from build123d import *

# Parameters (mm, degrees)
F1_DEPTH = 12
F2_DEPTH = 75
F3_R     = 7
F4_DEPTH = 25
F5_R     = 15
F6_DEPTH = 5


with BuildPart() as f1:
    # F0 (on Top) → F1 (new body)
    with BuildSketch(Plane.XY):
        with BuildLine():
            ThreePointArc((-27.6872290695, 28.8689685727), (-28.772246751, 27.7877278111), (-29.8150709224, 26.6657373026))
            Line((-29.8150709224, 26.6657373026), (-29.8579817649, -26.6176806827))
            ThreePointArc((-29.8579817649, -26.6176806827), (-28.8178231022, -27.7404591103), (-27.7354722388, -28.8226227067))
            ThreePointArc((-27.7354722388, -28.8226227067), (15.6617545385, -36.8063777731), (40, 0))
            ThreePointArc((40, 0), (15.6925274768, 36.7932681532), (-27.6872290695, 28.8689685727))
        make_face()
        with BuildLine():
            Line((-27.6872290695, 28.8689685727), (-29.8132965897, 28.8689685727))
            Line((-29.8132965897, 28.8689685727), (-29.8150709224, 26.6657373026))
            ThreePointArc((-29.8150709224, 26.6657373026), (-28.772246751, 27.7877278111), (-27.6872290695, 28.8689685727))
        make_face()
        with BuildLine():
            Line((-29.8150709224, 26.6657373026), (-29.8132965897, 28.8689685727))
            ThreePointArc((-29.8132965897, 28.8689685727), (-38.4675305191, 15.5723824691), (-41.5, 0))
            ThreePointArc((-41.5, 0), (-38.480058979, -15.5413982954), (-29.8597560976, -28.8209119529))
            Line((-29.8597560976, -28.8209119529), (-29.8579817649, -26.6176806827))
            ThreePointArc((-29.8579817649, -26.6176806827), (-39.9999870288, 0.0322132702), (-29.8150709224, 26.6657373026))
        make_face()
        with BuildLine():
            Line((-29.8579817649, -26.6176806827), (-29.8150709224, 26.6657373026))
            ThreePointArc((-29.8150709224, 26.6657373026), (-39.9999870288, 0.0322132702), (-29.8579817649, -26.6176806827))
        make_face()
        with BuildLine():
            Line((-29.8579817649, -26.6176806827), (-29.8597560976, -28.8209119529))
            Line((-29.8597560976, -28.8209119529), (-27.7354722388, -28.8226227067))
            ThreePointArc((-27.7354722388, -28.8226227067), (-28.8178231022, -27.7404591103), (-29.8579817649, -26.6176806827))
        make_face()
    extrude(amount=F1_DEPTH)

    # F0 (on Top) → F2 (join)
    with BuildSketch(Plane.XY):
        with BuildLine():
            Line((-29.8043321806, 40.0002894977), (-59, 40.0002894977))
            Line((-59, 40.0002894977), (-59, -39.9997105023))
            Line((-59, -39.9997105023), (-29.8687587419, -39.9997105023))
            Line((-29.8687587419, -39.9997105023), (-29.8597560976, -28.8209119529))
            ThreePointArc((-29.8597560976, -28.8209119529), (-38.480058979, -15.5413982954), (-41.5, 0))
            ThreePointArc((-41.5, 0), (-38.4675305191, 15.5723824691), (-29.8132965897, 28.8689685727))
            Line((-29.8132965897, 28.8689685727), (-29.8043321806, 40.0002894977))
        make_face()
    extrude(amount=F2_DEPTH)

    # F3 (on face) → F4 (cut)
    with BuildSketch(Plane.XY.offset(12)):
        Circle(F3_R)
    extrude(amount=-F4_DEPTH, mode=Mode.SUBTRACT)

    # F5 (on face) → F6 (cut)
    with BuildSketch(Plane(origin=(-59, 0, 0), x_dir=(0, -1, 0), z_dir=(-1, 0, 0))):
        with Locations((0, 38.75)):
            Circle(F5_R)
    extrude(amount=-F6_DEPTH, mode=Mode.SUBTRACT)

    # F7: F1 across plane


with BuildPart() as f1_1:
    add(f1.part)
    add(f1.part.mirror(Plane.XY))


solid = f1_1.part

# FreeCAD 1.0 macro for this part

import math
import FreeCAD as App
import Part
import Sketcher
Q = App.Units.Quantity

doc = App.newDocument("Part")
body = doc.addObject("PartDesign::Body", "Body")

sketch1 = body.newObject("Sketcher::SketchObject", "Sketch")
sketch1.AttachmentSupport = (doc.getObject("XY_Plane"), [""])
sketch1.MapMode = "FlatFace"
sketch1.addGeometry([
    Part.ArcOfCircle(Part.Circle(App.Vector(0, 0, 0), App.Vector(0, 0, 1), 40), math.radians(-134), math.radians(0)),
    Part.ArcOfCircle(Part.Circle(App.Vector(0, 0, 0), App.Vector(0, 0, 1), 40), math.radians(0), math.radians(134)),
    Part.LineSegment(App.Vector(-27.7, 28.9, 0), App.Vector(-29.8, 28.9, 0)),
    Part.ArcOfCircle(Part.Circle(App.Vector(0, 0, 0), App.Vector(0, 0, 1), 41.5), math.radians(136), math.radians(180)),
    Part.ArcOfCircle(Part.Circle(App.Vector(0, 0, 0), App.Vector(0, 0, 1), 41.5), math.radians(180), math.radians(224)),
    Part.LineSegment(App.Vector(-29.9, -28.8, 0), App.Vector(-27.7, -28.8, 0)),
], False)
sketch1.addConstraint([
    Sketcher.Constraint("Tangent", 0, 2, 1, 1),
    Sketcher.Constraint("Coincident", 1, 2, 2, 1),
    Sketcher.Constraint("Coincident", 2, 2, 3, 1),
    Sketcher.Constraint("Tangent", 3, 2, 4, 1),
    Sketcher.Constraint("Coincident", 4, 2, 5, 1),
    Sketcher.Constraint("Coincident", 5, 2, 0, 1),
    Sketcher.Constraint("Horizontal", 2),
    Sketcher.Constraint("Coincident", 0, 3, -1, 1),
    Sketcher.Constraint("Coincident", 3, 3, -1, 1),
    Sketcher.Constraint("Equal", 0, 1),
    Sketcher.Constraint("Equal", 3, 4),
    Sketcher.Constraint("PointOnObject", 0, 2, -1),
    Sketcher.Constraint("PointOnObject", 3, 2, -1),
    Sketcher.Constraint("Radius", 0, Q("40 mm")),
    Sketcher.Constraint("Radius", 3, Q("41.5 mm")),
    Sketcher.Constraint("DistanceX", 2, 2, 2, 1, Q("2.126068 mm")),
    Sketcher.Constraint("DistanceY", 4, 2, -1, 1, Q("28.820912 mm")),
    Sketcher.Constraint("DistanceY", 5, 2, 4, 2, Q("0.001711 mm")),
])
pad1 = body.newObject("PartDesign::Pad", "Pad")
pad1.Profile = sketch1
pad1.Length = 12

sketch2 = body.newObject("Sketcher::SketchObject", "Sketch001")
sketch2.AttachmentSupport = (doc.getObject("XY_Plane"), [""])
sketch2.MapMode = "FlatFace"
sketch2.addGeometry([
    Part.LineSegment(App.Vector(-30, 40, 0), App.Vector(-59, 40, 0)),
    Part.LineSegment(App.Vector(-59, 40, 0), App.Vector(-59, -40, 0)),
    Part.LineSegment(App.Vector(-59, -40, 0), App.Vector(-30, -40, 0)),
    Part.LineSegment(App.Vector(-30, -40, 0), App.Vector(-30, -29, 0)),
    Part.ArcOfCircle(Part.Circle(App.Vector(0, 0, 0), App.Vector(0, 0, 1), 42), math.radians(180), math.radians(224)),
    Part.ArcOfCircle(Part.Circle(App.Vector(0, 0, 0), App.Vector(0, 0, 1), 41), math.radians(136), math.radians(180)),
    Part.LineSegment(App.Vector(-30, 29, 0), App.Vector(-30, 40, 0)),
], False)
sketch2.addConstraint([
    Sketcher.Constraint("Coincident", 0, 2, 1, 1),
    Sketcher.Constraint("Coincident", 1, 2, 2, 1),
    Sketcher.Constraint("Coincident", 2, 2, 3, 1),
    Sketcher.Constraint("Coincident", 3, 2, 4, 2),
    Sketcher.Constraint("Tangent", 4, 1, 5, 2),
    Sketcher.Constraint("Coincident", 5, 1, 6, 1),
    Sketcher.Constraint("Coincident", 6, 2, 0, 1),
    Sketcher.Constraint("Horizontal", 0),
    Sketcher.Constraint("Vertical", 1),
    Sketcher.Constraint("Horizontal", 2),
    Sketcher.Constraint("Coincident", 4, 3, -1, 1),
    Sketcher.Constraint("Equal", 4, 5),
    Sketcher.Constraint("PointOnObject", 4, 1, -1),
    Sketcher.Constraint("Parallel", 3, 6),
    Sketcher.Constraint("Radius", 4, Q("41.5 mm")),
    Sketcher.Constraint("DistanceY", 1, 2, 1, 1, Q("80 mm")),
    Sketcher.Constraint("DistanceX", 0, 2, -1, 1, Q("59 mm")),
    Sketcher.Constraint("DistanceX", 2, 1, 2, 2, Q("29.131241 mm")),
    Sketcher.Constraint("DistanceY", 2, 2, 3, 2, Q("11.178799 mm")),
    Sketcher.Constraint("DistanceX", 0, 2, 0, 1, Q("29.195668 mm")),
    Sketcher.Constraint("DistanceY", -1, 1, 0, 2, Q("40.000289 mm")),
])
pad2 = body.newObject("PartDesign::Pad", "Pad001")
pad2.Profile = sketch2
pad2.Length = 75

sketch3 = body.newObject("Sketcher::SketchObject", "Sketch002")
sketch3.AttachmentSupport = (doc.getObject("XY_Plane"), [""])
sketch3.MapMode = "FlatFace"
sketch3.AttachmentOffset = App.Placement(App.Vector(0, 0, 12), App.Rotation())
sketch3.addGeometry(Part.Circle(App.Vector(0, 0, 0), App.Vector(0, 0, 1), 7), False)
sketch3.addConstraint([
    Sketcher.Constraint("Coincident", 0, 3, -1, 1),
    Sketcher.Constraint("Diameter", 0, Q("14 mm")),
])
pocket1 = body.newObject("PartDesign::Pocket", "Pocket")
pocket1.Profile = sketch3
pocket1.Length = 25

sketch4 = body.newObject("Sketcher::SketchObject", "Sketch003")
sketch4.AttachmentSupport = (doc.getObject("YZ_Plane"), [""])
sketch4.MapMode = "FlatFace"
sketch4.AttachmentOffset = App.Placement(App.Vector(0, 0, -59), App.Rotation())
sketch4.addGeometry(Part.Circle(App.Vector(0, 39, 0), App.Vector(0, 0, 1), 15), False)
sketch4.addConstraint([
    Sketcher.Constraint("PointOnObject", 0, 3, -2),
    Sketcher.Constraint("Diameter", 0, Q("30 mm")),
    Sketcher.Constraint("DistanceY", -1, 1, 0, 3, Q("38.75 mm")),
])
pocket2 = body.newObject("PartDesign::Pocket", "Pocket001")
pocket2.Profile = sketch4
pocket2.Length = 5
pocket2.Reversed = True
body2 = doc.addObject("PartDesign::Body", "Body001")
doc.recompute()

body2.BaseFeature = body
doc.recompute()

mirroring = doc.addObject("Part::Mirroring", "Mirroring")
mirroring.Source = body
mirroring.Base = App.Vector(0, 0, 0)
mirroring.Normal = App.Vector(0, 0, 1)
body3 = doc.addObject("PartDesign::Body", "Body002")
body3.BaseFeature = mirroring
boolean = body2.newObject("PartDesign::Boolean", "Boolean")
boolean.Type = "Fuse"
boolean.addObjects([body3])
doc.recompute()
mirroring.Visibility = False

doc.recompute()
